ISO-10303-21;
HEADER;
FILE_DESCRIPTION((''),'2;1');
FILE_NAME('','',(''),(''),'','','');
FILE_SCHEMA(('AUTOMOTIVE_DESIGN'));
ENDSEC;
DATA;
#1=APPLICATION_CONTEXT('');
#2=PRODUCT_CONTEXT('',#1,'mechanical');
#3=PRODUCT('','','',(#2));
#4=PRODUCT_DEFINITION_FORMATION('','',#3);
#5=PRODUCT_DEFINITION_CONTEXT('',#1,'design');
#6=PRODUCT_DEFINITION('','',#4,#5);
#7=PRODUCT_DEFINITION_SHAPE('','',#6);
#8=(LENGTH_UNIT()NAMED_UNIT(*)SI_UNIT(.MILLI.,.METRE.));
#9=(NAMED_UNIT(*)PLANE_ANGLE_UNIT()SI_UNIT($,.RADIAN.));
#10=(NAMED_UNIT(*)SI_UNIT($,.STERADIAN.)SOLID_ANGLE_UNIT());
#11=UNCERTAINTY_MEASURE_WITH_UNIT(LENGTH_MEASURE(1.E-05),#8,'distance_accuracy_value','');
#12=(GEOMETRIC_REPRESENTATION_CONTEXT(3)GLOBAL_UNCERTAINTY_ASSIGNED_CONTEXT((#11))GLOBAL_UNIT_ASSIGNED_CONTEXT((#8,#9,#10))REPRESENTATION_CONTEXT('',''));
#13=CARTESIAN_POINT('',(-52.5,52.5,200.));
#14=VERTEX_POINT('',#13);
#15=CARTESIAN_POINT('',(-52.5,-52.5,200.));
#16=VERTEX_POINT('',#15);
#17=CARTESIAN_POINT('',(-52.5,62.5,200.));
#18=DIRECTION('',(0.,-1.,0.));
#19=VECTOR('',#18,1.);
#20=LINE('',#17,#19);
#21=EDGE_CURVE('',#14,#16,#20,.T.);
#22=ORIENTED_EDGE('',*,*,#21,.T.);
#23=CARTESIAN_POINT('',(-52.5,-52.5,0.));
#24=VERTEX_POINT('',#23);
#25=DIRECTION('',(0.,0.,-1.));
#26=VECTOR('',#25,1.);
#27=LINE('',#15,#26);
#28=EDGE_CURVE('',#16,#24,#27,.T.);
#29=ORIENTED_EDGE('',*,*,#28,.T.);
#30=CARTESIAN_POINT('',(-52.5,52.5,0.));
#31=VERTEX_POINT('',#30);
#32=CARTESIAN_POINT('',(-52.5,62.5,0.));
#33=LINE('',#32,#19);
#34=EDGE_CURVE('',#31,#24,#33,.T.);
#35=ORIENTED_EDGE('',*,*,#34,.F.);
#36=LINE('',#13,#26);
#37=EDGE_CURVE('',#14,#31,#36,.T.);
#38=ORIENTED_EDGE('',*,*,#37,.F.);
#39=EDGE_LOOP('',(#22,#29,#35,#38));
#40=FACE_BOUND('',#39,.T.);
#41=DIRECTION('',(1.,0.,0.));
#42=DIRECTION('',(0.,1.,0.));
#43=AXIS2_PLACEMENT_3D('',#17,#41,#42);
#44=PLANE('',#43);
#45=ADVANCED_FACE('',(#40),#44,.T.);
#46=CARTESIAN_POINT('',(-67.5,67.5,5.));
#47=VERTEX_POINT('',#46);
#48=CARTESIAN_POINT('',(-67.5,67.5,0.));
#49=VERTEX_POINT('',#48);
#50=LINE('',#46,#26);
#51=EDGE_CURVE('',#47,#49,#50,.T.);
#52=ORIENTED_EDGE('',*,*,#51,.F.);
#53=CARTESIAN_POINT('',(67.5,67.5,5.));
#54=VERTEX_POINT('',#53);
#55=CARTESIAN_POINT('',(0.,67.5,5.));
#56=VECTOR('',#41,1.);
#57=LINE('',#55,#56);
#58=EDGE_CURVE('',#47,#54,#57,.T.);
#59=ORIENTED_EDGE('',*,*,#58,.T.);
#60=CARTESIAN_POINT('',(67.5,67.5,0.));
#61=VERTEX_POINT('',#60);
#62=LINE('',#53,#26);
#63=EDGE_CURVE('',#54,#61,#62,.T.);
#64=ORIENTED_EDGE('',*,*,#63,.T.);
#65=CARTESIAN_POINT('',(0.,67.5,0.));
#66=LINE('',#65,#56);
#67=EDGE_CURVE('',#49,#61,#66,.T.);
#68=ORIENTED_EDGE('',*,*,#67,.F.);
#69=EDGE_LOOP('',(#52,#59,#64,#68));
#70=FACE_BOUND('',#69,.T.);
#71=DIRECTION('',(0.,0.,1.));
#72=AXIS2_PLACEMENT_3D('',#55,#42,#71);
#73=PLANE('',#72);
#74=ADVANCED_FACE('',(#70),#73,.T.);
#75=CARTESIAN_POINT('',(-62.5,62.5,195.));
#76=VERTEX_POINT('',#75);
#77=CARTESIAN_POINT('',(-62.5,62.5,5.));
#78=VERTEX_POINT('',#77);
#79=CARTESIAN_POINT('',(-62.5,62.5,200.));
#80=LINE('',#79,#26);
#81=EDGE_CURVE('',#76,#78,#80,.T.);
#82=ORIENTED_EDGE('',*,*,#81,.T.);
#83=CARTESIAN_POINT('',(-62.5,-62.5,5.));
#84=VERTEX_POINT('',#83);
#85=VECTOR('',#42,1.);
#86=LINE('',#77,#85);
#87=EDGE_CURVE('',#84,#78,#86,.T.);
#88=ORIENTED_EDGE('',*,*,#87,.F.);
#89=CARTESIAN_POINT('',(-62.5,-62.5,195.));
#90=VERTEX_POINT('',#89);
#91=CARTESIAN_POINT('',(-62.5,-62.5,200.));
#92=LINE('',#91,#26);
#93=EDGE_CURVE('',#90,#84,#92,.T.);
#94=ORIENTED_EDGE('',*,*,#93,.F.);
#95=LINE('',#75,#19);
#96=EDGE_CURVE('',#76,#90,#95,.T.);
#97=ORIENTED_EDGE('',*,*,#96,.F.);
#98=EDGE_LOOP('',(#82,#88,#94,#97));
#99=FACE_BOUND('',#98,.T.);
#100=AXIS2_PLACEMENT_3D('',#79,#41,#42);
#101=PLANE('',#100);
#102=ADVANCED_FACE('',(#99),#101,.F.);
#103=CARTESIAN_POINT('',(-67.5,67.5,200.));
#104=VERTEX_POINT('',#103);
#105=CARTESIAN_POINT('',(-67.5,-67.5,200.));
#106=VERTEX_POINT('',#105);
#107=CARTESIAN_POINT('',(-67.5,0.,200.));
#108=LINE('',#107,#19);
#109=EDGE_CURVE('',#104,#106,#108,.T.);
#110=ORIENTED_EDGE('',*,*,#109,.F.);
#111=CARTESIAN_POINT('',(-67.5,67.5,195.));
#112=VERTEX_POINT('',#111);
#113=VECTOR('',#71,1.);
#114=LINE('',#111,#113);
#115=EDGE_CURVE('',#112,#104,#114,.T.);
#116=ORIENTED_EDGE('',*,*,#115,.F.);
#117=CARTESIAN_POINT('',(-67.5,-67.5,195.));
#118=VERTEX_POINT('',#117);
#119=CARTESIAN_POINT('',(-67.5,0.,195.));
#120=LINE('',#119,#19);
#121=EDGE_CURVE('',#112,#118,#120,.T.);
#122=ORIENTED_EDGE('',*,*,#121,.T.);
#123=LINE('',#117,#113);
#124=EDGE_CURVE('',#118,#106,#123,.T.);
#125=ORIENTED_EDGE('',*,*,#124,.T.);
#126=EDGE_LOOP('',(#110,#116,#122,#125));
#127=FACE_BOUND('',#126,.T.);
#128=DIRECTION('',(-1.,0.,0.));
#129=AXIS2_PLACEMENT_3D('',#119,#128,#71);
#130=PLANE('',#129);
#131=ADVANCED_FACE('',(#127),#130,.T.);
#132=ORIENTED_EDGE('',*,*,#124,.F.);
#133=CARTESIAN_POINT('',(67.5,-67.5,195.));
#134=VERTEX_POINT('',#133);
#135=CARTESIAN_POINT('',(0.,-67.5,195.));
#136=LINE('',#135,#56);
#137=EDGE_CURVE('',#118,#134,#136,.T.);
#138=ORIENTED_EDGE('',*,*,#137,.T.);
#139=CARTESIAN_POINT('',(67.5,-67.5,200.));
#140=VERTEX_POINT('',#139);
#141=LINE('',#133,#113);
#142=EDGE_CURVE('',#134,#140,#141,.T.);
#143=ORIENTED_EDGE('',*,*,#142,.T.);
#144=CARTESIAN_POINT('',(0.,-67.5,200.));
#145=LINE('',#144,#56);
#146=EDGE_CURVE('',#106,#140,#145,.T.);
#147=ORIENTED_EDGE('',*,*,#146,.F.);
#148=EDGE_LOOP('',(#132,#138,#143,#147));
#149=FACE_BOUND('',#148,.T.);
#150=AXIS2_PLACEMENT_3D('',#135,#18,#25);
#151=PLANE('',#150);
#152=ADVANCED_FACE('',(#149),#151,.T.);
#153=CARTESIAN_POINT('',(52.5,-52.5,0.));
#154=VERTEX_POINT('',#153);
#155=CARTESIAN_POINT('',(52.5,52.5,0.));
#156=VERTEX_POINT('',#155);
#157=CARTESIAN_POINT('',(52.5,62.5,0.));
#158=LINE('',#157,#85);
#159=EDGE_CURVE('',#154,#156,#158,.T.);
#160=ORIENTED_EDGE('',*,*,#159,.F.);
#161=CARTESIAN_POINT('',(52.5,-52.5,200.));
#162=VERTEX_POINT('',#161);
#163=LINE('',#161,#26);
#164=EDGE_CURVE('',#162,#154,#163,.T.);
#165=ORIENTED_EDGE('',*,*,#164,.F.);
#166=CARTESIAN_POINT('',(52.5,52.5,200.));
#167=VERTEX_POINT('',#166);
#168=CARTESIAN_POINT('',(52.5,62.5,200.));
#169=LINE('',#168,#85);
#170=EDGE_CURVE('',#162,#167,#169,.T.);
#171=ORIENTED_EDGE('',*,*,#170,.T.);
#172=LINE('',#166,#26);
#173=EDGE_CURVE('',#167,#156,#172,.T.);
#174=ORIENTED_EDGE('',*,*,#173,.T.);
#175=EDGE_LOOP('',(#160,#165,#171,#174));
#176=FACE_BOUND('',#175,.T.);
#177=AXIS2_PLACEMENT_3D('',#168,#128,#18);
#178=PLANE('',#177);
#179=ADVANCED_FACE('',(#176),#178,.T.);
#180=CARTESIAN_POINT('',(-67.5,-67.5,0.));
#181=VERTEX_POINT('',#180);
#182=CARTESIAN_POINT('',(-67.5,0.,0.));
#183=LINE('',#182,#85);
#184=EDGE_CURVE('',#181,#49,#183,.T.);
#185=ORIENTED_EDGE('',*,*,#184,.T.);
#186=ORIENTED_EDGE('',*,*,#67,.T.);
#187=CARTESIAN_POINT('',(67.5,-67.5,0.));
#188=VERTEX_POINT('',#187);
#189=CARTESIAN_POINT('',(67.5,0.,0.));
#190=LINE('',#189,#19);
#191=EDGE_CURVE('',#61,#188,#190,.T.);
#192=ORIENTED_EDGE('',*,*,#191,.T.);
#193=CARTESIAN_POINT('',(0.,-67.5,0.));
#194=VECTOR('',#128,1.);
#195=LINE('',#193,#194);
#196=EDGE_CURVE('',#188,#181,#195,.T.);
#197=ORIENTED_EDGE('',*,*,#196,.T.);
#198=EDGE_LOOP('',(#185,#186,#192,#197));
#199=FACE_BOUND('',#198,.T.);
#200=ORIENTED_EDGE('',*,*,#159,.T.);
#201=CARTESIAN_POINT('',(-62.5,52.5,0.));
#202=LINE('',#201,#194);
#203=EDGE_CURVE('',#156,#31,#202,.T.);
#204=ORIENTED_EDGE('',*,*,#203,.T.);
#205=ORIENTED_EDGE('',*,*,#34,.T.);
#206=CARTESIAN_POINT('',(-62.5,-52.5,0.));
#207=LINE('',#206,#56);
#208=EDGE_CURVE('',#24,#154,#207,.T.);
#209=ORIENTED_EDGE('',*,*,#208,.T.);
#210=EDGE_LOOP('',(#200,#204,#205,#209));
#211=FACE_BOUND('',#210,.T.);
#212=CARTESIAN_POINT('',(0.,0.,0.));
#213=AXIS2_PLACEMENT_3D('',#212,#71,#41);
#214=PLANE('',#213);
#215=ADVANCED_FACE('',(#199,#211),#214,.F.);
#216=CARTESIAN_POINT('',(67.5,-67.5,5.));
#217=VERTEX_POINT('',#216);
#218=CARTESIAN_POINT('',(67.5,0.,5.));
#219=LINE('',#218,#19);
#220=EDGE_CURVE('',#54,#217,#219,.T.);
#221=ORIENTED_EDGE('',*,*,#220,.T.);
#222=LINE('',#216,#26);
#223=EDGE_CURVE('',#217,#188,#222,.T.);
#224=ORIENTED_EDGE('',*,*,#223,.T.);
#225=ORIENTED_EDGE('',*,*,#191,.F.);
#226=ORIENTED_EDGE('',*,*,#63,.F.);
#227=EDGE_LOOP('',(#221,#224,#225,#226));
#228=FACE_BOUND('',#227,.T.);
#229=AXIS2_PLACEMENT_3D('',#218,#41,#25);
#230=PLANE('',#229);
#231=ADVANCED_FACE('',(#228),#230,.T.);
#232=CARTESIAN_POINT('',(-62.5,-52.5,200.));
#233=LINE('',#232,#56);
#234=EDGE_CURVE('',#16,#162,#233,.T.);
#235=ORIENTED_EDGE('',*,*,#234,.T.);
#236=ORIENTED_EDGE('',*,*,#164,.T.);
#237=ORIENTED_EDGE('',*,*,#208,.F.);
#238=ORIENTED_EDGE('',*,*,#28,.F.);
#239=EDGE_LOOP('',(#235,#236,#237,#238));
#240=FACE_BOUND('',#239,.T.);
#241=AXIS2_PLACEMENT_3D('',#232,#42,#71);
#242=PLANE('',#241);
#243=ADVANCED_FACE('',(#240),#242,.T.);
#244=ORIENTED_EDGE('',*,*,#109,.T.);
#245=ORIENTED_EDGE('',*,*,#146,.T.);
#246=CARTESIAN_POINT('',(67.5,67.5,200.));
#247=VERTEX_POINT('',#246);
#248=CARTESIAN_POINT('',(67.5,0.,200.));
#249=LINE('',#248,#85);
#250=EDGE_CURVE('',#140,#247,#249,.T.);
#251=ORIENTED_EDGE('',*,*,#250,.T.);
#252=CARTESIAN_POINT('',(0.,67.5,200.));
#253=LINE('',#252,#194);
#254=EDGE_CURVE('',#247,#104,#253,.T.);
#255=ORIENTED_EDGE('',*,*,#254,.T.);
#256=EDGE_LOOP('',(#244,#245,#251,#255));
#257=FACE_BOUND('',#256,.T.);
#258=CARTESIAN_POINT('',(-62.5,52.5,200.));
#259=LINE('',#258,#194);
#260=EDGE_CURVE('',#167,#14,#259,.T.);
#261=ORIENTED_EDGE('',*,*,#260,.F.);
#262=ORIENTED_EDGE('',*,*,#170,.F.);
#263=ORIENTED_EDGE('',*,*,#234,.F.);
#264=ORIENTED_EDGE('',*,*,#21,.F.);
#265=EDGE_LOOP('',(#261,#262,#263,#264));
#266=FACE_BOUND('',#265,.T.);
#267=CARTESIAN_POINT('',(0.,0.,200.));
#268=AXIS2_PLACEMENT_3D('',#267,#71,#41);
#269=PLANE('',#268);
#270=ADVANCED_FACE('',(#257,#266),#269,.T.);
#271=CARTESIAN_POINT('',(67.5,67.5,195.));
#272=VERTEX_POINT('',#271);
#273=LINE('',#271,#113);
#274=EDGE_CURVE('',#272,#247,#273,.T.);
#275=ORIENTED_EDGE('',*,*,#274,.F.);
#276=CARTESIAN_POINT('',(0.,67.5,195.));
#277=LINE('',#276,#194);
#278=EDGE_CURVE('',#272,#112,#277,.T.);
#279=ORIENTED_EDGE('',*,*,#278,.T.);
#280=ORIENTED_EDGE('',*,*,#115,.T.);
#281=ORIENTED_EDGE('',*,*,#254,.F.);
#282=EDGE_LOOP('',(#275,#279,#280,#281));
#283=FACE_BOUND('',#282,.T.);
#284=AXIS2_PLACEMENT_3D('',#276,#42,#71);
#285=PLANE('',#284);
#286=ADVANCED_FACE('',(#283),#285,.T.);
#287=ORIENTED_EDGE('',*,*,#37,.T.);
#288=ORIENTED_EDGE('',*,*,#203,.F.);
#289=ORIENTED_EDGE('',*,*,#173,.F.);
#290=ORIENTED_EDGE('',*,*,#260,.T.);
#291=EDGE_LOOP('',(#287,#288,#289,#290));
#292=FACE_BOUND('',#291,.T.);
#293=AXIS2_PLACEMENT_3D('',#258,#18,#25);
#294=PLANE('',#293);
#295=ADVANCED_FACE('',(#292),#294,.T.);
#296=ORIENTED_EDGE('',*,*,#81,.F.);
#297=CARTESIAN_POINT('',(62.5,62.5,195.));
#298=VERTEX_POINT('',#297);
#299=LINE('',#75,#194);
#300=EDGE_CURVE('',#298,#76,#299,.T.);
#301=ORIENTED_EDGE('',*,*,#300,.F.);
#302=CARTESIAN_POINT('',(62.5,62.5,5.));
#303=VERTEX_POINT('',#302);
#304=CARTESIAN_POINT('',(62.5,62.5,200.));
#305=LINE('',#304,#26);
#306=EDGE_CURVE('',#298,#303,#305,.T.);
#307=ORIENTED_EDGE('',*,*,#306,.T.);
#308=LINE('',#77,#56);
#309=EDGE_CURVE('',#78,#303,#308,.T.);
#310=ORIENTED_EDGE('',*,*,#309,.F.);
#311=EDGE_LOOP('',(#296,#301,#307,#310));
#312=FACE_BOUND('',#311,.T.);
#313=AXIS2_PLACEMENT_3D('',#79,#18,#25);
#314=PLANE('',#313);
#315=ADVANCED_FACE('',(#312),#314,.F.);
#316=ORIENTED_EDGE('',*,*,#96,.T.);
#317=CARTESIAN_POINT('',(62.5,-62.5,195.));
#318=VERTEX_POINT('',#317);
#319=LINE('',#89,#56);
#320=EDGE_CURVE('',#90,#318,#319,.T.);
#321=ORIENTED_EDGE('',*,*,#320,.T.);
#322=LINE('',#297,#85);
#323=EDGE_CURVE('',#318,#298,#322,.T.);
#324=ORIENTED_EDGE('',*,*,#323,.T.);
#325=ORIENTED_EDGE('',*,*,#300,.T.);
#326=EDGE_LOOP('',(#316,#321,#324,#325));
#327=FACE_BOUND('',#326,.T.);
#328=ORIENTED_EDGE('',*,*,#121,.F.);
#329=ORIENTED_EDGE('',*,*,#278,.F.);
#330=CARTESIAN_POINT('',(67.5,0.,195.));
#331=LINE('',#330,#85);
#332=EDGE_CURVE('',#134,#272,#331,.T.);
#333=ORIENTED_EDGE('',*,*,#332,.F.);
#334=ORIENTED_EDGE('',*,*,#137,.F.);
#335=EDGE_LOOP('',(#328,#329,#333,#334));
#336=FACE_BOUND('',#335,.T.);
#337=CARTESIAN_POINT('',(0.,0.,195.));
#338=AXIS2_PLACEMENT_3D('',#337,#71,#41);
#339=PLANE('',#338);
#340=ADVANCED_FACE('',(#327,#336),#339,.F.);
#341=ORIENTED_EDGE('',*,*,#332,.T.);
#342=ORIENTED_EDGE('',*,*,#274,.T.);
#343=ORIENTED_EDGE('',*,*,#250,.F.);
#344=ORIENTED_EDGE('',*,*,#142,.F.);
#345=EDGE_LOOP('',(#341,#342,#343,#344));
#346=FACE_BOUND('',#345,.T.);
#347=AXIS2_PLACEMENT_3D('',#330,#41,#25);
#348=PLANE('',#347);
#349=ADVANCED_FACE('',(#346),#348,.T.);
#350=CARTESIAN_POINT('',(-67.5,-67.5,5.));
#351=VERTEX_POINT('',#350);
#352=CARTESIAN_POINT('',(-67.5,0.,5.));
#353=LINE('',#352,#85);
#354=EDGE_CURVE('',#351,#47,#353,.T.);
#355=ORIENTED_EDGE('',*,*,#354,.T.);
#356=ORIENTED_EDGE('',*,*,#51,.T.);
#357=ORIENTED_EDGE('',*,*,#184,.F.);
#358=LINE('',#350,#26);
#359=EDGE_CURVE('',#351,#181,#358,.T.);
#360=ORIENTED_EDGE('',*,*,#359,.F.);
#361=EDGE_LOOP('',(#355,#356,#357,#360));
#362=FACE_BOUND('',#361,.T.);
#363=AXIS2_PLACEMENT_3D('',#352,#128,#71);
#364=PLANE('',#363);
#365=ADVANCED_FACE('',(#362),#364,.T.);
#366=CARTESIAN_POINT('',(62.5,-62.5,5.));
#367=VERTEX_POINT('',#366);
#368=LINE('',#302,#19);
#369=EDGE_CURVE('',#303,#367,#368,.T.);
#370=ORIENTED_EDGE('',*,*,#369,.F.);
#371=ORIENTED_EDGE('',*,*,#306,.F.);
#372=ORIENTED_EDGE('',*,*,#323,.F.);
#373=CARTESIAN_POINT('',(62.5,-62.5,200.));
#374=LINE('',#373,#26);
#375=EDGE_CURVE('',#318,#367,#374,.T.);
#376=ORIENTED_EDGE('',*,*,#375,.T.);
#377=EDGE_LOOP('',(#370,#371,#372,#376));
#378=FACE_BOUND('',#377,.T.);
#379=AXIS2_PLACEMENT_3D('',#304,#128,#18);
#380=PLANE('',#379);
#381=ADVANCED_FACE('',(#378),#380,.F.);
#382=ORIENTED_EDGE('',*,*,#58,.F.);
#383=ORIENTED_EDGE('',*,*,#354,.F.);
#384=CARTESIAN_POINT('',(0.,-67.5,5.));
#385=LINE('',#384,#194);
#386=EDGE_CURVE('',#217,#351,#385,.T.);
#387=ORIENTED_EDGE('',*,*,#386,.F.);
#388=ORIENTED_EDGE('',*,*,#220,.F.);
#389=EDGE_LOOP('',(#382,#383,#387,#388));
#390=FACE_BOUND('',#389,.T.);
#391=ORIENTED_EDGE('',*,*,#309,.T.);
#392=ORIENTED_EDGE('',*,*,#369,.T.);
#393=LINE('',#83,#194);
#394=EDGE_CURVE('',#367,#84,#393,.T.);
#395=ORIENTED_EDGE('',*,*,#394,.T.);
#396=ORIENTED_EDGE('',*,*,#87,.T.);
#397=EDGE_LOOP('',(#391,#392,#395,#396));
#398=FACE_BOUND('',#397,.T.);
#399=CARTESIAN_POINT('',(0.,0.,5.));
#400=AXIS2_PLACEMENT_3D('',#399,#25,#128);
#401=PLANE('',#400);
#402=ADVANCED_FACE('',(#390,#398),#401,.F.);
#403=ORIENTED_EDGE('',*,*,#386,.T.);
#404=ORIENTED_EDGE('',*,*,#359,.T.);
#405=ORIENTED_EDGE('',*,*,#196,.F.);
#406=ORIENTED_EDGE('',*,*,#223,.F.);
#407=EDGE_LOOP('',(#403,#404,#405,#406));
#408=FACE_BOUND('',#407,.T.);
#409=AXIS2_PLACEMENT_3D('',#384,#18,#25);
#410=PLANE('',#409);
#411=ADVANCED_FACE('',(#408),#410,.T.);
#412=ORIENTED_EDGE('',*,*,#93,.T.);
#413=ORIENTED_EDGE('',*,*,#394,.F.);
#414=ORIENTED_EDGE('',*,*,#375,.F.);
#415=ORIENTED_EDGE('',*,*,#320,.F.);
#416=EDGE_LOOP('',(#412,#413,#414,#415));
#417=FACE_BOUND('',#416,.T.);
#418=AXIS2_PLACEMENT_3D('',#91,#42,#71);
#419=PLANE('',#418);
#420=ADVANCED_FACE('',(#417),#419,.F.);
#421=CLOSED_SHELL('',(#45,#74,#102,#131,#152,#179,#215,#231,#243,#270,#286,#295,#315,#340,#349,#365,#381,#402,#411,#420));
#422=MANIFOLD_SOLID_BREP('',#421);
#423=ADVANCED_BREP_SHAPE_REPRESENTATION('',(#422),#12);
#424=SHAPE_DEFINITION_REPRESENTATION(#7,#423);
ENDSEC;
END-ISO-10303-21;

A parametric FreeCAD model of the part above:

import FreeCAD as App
import Part
import Sketcher


def faces_at(feature, points):
    """Names of the faces that lie closest to the given points."""
    faces = feature.Shape.Faces
    near = lambda p: min(range(len(faces)), key=lambda i: faces[i].distToShape(Part.Vertex(*p))[0])
    return sorted({f"Face{near(p) + 1}" for p in points})


def add_polygon(sketch, points):
    """Adds a closed chain of lines whose ends are joined by coincident constraints."""
    first, n = sketch.GeometryCount, len(points)
    for a, b in zip(points, points[1:] + points[:1]):
        sketch.addGeometry(Part.LineSegment(App.Vector(*a, 0), App.Vector(*b, 0)), False)
    for i in range(n):
        sketch.addConstraint(Sketcher.Constraint("Coincident", first + i, 2, first + (i + 1) % n, 1))

doc = App.newDocument("Part")
params = doc.addObject("Spreadsheet::Sheet", "Params")
for row, (alias, value) in enumerate([
    ("sketch1_width", "125 mm"),
    ("pad1_length", "200 mm"),
    ("thickness_wall", "10 mm"),
    ("sketch2_width", "135 mm"),
    ("sketch2_width2", "105 mm"),
    ("pad2_length", "5 mm"),
    ("sketch3_width", "135 mm"),
    ("sketch3_width2", "105 mm"),
    ("pad3_length", "5 mm"),
], start=1):
    params.set(f"A{row}", alias)
    params.set(f"B{row}", "=" + value)
    params.setAlias(f"B{row}", alias)

body = doc.addObject("PartDesign::Body", "Body")

# Sketch on XY plane
sketch1 = body.newObject("Sketcher::SketchObject", "Sketch")
sketch1.AttachmentSupport = (doc.getObject("XY_Plane"), [""])
sketch1.MapMode = "FlatFace"
add_polygon(sketch1, [(-62, 62), (-62, -62), (62, -62), (62, 62)])  # lines 0-3
sketch1.addConstraint(Sketcher.Constraint("Vertical", 0))
sketch1.addConstraint(Sketcher.Constraint("Horizontal", 1))
sketch1.addConstraint(Sketcher.Constraint("Vertical", 2))
sketch1.addConstraint(Sketcher.Constraint("Horizontal", 3))
sketch1.addConstraint(Sketcher.Constraint("Symmetric", 0, 2, 2, 2, -1, 1))
sketch1.addConstraint(Sketcher.Constraint("Equal", 3, 0))
sketch1.addConstraint(Sketcher.Constraint("DistanceX", 1, 1, 1, 2, 125.0))
sketch1.setExpression("Constraints[10]", "Params.sketch1_width")
pad1 = body.newObject("PartDesign::Pad", "Pad")
pad1.Profile = sketch1
pad1.setExpression("Length", "Params.pad1_length")
doc.recompute()

thickness = body.newObject("PartDesign::Thickness", "Thickness")
thickness.Base = (pad1, faces_at(pad1, [(0, 0, 200), (0, 0, 0)]))
thickness.setExpression("Value", "Params.thickness_wall")
thickness.Reversed = True
thickness.Join = "Intersection"

# Sketch on XY plane
sketch2 = body.newObject("Sketcher::SketchObject", "Sketch001")
sketch2.AttachmentSupport = (doc.getObject("XY_Plane"), [""])
sketch2.MapMode = "FlatFace"
sketch2.AttachmentOffset = App.Placement(App.Vector(0, 0, 200), App.Rotation())
add_polygon(sketch2, [(-68, 68), (-68, -68), (68, -68), (68, 68)])  # lines 0-3
add_polygon(sketch2, [(52, -52), (-52, -52), (-52, 52), (52, 52)])  # lines 4-7
sketch2.addConstraint(Sketcher.Constraint("Vertical", 0))
sketch2.addConstraint(Sketcher.Constraint("Horizontal", 1))
sketch2.addConstraint(Sketcher.Constraint("Vertical", 2))
sketch2.addConstraint(Sketcher.Constraint("Horizontal", 3))
sketch2.addConstraint(Sketcher.Constraint("Horizontal", 4))
sketch2.addConstraint(Sketcher.Constraint("Vertical", 5))
sketch2.addConstraint(Sketcher.Constraint("Horizontal", 6))
sketch2.addConstraint(Sketcher.Constraint("Vertical", 7))
sketch2.addConstraint(Sketcher.Constraint("Symmetric", 0, 2, 2, 2, -1, 1))
sketch2.addConstraint(Sketcher.Constraint("Symmetric", 4, 2, 6, 2, -1, 1))
sketch2.addConstraint(Sketcher.Constraint("Equal", 3, 0))
sketch2.addConstraint(Sketcher.Constraint("Equal", 6, 5))
sketch2.addConstraint(Sketcher.Constraint("DistanceX", 1, 1, 1, 2, 135.0))
sketch2.addConstraint(Sketcher.Constraint("DistanceX", 4, 2, 4, 1, 105.0))
sketch2.setExpression("Constraints[20]", "Params.sketch2_width")
sketch2.setExpression("Constraints[21]", "Params.sketch2_width2")
pad2 = body.newObject("PartDesign::Pad", "Pad001")
pad2.Profile = sketch2
pad2.setExpression("Length", "Params.pad2_length")
pad2.Reversed = True

# Sketch on XY plane
sketch3 = body.newObject("Sketcher::SketchObject", "Sketch002")
sketch3.AttachmentSupport = (doc.getObject("XY_Plane"), [""])
sketch3.MapMode = "FlatFace"
add_polygon(sketch3, [(68, 68), (68, -68), (-68, -68), (-68, 68)])  # lines 0-3
add_polygon(sketch3, [(-52, -52), (52, -52), (52, 52), (-52, 52)])  # lines 4-7
sketch3.addConstraint(Sketcher.Constraint("Vertical", 0))
sketch3.addConstraint(Sketcher.Constraint("Horizontal", 1))
sketch3.addConstraint(Sketcher.Constraint("Vertical", 2))
sketch3.addConstraint(Sketcher.Constraint("Horizontal", 3))
sketch3.addConstraint(Sketcher.Constraint("Horizontal", 4))
sketch3.addConstraint(Sketcher.Constraint("Vertical", 5))
sketch3.addConstraint(Sketcher.Constraint("Horizontal", 6))
sketch3.addConstraint(Sketcher.Constraint("Vertical", 7))
sketch3.addConstraint(Sketcher.Constraint("Symmetric", 0, 2, 2, 2, -1, 1))
sketch3.addConstraint(Sketcher.Constraint("Symmetric", 4, 2, 6, 2, -1, 1))
sketch3.addConstraint(Sketcher.Constraint("Equal", 3, 0))
sketch3.addConstraint(Sketcher.Constraint("Equal", 6, 5))
sketch3.addConstraint(Sketcher.Constraint("DistanceX", 1, 2, 1, 1, 135.0))
sketch3.addConstraint(Sketcher.Constraint("DistanceX", 4, 1, 4, 2, 105.0))
sketch3.setExpression("Constraints[20]", "Params.sketch3_width")
sketch3.setExpression("Constraints[21]", "Params.sketch3_width2")
pad3 = body.newObject("PartDesign::Pad", "Pad002")
pad3.Profile = sketch3
pad3.setExpression("Length", "Params.pad3_length")

doc.recompute()
